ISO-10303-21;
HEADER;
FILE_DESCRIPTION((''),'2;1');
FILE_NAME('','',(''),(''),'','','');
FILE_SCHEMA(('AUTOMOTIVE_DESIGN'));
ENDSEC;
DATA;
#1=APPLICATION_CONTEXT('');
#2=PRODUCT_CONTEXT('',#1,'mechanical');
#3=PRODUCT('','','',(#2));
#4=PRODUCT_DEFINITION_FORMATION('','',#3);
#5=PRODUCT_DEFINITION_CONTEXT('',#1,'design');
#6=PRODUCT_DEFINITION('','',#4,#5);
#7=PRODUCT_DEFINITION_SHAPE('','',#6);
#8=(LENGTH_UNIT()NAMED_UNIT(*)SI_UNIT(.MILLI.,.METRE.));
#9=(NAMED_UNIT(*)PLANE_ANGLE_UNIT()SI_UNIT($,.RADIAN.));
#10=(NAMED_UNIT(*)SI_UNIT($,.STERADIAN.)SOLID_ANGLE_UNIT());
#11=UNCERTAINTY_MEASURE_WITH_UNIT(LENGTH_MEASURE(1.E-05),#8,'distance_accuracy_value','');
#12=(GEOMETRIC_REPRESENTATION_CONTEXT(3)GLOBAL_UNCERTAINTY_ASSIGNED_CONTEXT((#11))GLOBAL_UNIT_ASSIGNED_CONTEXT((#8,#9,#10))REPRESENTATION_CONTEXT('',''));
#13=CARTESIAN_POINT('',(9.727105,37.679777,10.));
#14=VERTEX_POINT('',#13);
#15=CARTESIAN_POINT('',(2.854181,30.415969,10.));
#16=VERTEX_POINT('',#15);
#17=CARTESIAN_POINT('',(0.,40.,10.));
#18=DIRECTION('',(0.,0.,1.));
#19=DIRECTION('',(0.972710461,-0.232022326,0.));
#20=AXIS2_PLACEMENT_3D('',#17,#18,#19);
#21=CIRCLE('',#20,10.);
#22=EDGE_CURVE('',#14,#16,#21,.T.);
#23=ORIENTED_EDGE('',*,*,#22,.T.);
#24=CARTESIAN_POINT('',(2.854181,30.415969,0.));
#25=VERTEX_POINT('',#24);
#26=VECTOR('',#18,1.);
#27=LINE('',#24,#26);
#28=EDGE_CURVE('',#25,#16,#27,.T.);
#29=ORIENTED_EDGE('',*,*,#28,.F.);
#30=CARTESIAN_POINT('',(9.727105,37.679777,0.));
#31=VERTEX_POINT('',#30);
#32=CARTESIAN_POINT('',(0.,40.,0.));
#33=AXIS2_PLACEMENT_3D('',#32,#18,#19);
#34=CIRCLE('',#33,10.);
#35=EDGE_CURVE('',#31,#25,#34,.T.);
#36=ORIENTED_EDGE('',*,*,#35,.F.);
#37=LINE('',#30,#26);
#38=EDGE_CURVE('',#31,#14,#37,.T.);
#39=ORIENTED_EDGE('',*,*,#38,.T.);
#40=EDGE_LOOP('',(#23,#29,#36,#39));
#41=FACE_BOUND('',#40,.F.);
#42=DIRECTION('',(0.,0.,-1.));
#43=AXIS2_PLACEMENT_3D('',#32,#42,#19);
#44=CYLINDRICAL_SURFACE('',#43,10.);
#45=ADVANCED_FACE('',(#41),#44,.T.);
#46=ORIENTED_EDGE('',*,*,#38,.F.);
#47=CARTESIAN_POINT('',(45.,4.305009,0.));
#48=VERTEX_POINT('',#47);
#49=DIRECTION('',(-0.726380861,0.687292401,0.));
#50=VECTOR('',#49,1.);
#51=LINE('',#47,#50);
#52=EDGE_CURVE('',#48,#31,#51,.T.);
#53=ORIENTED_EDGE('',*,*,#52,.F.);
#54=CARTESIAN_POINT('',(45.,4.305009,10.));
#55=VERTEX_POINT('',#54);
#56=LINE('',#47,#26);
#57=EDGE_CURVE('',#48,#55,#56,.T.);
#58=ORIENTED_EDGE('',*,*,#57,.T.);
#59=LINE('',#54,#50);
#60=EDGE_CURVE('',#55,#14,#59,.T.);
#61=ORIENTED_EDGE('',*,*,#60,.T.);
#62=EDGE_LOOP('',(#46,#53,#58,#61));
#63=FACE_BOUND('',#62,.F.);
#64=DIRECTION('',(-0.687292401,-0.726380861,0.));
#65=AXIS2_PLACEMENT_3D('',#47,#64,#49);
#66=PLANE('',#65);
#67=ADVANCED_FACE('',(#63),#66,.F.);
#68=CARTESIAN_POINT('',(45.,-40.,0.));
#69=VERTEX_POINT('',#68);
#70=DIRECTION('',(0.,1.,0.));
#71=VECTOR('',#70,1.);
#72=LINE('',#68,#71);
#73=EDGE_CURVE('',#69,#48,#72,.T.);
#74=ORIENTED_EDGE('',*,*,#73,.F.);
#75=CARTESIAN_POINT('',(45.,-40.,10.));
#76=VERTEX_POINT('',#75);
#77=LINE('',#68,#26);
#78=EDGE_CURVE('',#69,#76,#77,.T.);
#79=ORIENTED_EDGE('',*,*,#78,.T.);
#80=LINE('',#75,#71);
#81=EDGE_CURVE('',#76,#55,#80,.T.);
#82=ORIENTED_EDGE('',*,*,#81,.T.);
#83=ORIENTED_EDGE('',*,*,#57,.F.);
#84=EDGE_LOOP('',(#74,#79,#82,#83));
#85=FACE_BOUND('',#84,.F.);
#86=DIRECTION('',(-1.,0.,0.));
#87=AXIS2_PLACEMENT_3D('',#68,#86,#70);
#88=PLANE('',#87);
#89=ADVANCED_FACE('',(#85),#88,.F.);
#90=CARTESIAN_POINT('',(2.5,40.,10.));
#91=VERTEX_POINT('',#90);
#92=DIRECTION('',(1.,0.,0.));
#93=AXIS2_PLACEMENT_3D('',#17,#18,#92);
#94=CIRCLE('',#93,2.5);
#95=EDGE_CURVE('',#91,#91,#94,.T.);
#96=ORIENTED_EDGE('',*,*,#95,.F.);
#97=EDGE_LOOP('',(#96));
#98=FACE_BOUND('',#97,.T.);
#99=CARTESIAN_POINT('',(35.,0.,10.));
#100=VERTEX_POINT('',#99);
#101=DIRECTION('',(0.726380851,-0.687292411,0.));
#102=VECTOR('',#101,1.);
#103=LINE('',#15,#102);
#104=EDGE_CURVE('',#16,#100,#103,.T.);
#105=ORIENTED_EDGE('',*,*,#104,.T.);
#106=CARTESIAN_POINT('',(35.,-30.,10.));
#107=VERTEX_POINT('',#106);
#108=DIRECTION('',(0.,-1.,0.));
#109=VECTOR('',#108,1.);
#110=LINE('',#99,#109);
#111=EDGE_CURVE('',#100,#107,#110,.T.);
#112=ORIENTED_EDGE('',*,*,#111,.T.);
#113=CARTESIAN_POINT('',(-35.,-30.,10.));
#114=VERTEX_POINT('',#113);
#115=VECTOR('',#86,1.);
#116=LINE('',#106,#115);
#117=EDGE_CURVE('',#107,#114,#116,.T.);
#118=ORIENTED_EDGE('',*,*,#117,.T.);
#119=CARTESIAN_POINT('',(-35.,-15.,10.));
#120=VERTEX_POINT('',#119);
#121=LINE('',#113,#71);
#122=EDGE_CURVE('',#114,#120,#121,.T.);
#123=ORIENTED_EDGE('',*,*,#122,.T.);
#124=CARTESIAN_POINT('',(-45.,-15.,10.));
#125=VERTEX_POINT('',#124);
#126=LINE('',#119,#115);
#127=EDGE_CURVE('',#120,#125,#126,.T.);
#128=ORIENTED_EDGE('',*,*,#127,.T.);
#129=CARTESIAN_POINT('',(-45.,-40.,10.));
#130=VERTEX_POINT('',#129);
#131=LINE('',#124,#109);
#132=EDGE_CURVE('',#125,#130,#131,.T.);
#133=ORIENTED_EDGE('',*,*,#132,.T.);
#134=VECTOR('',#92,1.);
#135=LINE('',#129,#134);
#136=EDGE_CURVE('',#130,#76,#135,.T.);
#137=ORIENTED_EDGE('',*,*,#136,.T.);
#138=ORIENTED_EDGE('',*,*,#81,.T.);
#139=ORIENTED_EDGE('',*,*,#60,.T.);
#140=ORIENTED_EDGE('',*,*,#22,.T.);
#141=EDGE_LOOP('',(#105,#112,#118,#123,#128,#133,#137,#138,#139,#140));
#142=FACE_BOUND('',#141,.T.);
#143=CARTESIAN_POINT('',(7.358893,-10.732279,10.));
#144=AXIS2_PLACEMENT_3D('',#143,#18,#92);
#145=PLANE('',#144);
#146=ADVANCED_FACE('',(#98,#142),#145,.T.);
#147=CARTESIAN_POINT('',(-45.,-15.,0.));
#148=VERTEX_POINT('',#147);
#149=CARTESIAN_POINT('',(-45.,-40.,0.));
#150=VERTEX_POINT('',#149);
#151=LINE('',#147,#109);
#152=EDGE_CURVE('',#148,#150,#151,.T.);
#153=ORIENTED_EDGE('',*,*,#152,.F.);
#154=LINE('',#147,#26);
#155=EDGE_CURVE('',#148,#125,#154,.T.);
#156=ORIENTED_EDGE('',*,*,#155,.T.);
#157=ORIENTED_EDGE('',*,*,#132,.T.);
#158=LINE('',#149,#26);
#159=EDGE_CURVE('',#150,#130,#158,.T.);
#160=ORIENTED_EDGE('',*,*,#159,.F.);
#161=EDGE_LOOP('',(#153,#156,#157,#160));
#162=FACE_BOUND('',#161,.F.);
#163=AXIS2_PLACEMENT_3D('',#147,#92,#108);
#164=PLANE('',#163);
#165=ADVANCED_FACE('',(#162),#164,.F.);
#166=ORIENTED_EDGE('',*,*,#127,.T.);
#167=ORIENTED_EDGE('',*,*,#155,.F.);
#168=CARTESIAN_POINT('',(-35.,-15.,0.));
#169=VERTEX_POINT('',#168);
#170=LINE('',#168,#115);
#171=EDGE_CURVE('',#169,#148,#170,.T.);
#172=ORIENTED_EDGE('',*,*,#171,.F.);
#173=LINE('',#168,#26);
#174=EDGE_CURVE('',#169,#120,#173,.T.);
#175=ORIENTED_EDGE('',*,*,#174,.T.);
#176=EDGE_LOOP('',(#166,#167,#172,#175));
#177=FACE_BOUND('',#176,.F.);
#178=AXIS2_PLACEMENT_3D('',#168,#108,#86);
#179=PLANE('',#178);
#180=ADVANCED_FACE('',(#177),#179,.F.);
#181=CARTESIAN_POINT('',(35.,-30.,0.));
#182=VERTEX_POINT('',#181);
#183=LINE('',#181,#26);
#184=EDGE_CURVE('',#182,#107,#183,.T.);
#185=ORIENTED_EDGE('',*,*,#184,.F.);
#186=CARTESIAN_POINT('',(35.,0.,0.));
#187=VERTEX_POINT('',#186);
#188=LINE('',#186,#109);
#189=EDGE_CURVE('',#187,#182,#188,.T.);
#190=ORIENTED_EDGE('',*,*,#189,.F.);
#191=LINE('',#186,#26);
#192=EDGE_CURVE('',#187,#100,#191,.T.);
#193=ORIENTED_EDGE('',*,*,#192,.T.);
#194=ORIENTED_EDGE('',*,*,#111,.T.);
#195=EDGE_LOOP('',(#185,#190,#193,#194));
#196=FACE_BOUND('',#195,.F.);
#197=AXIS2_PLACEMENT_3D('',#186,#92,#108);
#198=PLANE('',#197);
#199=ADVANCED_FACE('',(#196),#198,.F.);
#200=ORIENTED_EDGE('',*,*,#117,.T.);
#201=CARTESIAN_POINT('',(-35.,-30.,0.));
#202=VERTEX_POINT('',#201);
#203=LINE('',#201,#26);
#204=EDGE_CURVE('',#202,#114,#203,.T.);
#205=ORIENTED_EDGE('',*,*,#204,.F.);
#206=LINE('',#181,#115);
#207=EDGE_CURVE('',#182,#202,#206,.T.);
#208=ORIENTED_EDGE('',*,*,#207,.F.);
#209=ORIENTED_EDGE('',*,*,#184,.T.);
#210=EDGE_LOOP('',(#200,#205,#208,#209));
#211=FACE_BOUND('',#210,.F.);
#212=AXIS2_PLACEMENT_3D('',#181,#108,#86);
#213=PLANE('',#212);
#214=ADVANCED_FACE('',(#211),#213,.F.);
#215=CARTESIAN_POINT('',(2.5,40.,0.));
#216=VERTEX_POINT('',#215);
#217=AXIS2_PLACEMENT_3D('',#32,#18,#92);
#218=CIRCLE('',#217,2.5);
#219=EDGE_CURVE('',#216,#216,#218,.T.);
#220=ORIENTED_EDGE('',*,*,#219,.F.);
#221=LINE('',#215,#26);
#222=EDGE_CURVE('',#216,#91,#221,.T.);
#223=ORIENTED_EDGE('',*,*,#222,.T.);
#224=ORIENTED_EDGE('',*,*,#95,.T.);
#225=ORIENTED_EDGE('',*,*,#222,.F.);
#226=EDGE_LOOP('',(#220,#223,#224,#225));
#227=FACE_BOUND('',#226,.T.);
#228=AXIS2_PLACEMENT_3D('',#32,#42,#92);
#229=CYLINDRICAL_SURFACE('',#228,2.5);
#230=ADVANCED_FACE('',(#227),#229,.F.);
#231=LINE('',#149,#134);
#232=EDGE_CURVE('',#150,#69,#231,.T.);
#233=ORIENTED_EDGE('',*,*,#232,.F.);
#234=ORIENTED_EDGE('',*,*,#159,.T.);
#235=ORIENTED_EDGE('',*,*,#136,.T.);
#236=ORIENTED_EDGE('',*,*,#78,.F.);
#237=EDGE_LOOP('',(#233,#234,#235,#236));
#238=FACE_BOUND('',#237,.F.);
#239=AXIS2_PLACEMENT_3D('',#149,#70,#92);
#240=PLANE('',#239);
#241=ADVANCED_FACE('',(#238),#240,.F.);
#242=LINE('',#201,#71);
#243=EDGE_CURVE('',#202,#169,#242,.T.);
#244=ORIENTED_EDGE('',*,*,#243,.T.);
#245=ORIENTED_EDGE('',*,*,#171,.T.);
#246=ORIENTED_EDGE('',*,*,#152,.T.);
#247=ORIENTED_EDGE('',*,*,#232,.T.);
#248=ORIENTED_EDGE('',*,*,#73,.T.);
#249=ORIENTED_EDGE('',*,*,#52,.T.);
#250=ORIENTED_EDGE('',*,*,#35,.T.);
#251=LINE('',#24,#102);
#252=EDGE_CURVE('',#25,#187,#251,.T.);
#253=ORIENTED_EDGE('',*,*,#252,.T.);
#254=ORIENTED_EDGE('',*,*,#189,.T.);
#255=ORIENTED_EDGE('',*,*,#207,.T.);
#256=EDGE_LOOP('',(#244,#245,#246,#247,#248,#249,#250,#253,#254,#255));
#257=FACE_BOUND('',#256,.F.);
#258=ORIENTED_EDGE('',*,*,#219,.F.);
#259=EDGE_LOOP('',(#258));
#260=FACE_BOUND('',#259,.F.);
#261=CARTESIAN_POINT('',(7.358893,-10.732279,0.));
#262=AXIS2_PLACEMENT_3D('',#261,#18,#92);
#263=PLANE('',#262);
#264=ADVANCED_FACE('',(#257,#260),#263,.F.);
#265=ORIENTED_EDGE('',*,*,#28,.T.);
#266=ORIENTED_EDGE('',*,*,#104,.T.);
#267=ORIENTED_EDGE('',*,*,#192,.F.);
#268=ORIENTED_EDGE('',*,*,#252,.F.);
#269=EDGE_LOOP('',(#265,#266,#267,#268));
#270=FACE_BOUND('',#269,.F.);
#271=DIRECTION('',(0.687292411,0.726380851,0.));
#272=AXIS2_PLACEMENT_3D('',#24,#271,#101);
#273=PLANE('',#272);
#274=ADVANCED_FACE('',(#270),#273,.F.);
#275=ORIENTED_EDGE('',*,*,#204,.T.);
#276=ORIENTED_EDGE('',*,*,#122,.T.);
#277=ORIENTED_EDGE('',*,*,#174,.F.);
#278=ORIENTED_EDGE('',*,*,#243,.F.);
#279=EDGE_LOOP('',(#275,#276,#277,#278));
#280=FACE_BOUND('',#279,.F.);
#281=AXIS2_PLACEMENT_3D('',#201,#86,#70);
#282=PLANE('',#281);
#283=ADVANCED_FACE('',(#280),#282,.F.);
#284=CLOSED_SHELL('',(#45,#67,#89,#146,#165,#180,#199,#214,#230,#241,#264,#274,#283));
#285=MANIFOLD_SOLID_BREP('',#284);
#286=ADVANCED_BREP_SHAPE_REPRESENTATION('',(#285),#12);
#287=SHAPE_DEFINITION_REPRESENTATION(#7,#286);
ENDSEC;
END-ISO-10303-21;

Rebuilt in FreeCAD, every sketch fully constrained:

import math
import FreeCAD as App
import Part
import Sketcher
from FreeCAD import Vector
Q = App.Units.Quantity

doc = App.newDocument("Part")
body = doc.addObject("PartDesign::Body", "Body")

# Sketch on XY plane
sketch1 = doc.addObject("Sketcher::SketchObject", "Sketch")
body.addObject(sketch1)
sketch1.AttachmentSupport = (doc.XY_Plane, [""])
sketch1.MapMode = "FlatFace"
sketch1.addGeometry([
    Part.LineSegment(Vector(-45, -40, 0), Vector(45, -40, 0)),  # 0
    Part.LineSegment(Vector(45, -40, 0), Vector(45, 4.3, 0)),  # 1
    Part.LineSegment(Vector(45, 4.3, 0), Vector(9.7, 37.7, 0)),  # 2
    Part.ArcOfCircle(Part.Circle(Vector(0, 40, 0), Vector(0, 0, 1), 10), math.radians(-13), math.radians(287)),  # 3
    Part.LineSegment(Vector(2.9, 30.4, 0), Vector(35, 0, 0)),  # 4
    Part.LineSegment(Vector(35, 0, 0), Vector(35, -30, 0)),  # 5
    Part.LineSegment(Vector(35, -30, 0), Vector(-35, -30, 0)),  # 6
    Part.LineSegment(Vector(-35, -30, 0), Vector(-35, -15, 0)),  # 7
    Part.LineSegment(Vector(-35, -15, 0), Vector(-45, -15, 0)),  # 8
    Part.LineSegment(Vector(-45, -15, 0), Vector(-45, -40, 0)),  # 9
    Part.Circle(Vector(0, 40, 0), Vector(0, 0, 1), 2.5),  # 10
], False)
sketch1.addConstraint([
    Sketcher.Constraint("Coincident", 0, 2, 1, 1),
    Sketcher.Constraint("Coincident", 1, 2, 2, 1),
    Sketcher.Constraint("Coincident", 2, 2, 3, 1),
    Sketcher.Constraint("Coincident", 3, 2, 4, 1),
    Sketcher.Constraint("Coincident", 4, 2, 5, 1),
    Sketcher.Constraint("Coincident", 5, 2, 6, 1),
    Sketcher.Constraint("Coincident", 6, 2, 7, 1),
    Sketcher.Constraint("Coincident", 7, 2, 8, 1),
    Sketcher.Constraint("Coincident", 8, 2, 9, 1),
    Sketcher.Constraint("Coincident", 9, 2, 0, 1),
    Sketcher.Constraint("Horizontal", 0),
    Sketcher.Constraint("Vertical", 1),
    Sketcher.Constraint("Vertical", 5),
    Sketcher.Constraint("Horizontal", 6),
    Sketcher.Constraint("Vertical", 7),
    Sketcher.Constraint("Horizontal", 8),
    Sketcher.Constraint("Vertical", 9),
    Sketcher.Constraint("Coincident", 10, 3, 3, 3),
    Sketcher.Constraint("PointOnObject", 3, 3, -2),
    Sketcher.Constraint("PointOnObject", 4, 2, -1),
    Sketcher.Constraint("Parallel", 2, 4),
    Sketcher.Constraint("Diameter", 10, Q("5 mm")),
    Sketcher.Constraint("Radius", 3, Q("10 mm")),
    Sketcher.Constraint("DistanceX", 0, 1, 0, 2, Q("90 mm")),
    Sketcher.Constraint("DistanceX", 6, 2, 6, 1, Q("70 mm")),
    Sketcher.Constraint("DistanceX", 8, 2, 8, 1, Q("10 mm")),
    Sketcher.Constraint("DistanceY", 5, 2, 5, 1, Q("30 mm")),
    Sketcher.Constraint("DistanceY", 7, 1, 7, 2, Q("15 mm")),
    Sketcher.Constraint("DistanceY", 9, 2, 9, 1, Q("25 mm")),
    Sketcher.Constraint("DistanceY", -1, 1, 3, 3, Q("40 mm")),
    Sketcher.Constraint("DistanceX", -1, 1, 0, 2, Q("45 mm")),
    Sketcher.Constraint("DistanceY", 1, 1, 1, 2, Q("44.305009 mm")),
    Sketcher.Constraint("Distance", 2, Q("48.55978 mm")),
])
pad1 = doc.addObject("PartDesign::Pad", "Pad")
body.addObject(pad1)
pad1.Profile = sketch1
pad1.Length = 10

doc.recompute()
